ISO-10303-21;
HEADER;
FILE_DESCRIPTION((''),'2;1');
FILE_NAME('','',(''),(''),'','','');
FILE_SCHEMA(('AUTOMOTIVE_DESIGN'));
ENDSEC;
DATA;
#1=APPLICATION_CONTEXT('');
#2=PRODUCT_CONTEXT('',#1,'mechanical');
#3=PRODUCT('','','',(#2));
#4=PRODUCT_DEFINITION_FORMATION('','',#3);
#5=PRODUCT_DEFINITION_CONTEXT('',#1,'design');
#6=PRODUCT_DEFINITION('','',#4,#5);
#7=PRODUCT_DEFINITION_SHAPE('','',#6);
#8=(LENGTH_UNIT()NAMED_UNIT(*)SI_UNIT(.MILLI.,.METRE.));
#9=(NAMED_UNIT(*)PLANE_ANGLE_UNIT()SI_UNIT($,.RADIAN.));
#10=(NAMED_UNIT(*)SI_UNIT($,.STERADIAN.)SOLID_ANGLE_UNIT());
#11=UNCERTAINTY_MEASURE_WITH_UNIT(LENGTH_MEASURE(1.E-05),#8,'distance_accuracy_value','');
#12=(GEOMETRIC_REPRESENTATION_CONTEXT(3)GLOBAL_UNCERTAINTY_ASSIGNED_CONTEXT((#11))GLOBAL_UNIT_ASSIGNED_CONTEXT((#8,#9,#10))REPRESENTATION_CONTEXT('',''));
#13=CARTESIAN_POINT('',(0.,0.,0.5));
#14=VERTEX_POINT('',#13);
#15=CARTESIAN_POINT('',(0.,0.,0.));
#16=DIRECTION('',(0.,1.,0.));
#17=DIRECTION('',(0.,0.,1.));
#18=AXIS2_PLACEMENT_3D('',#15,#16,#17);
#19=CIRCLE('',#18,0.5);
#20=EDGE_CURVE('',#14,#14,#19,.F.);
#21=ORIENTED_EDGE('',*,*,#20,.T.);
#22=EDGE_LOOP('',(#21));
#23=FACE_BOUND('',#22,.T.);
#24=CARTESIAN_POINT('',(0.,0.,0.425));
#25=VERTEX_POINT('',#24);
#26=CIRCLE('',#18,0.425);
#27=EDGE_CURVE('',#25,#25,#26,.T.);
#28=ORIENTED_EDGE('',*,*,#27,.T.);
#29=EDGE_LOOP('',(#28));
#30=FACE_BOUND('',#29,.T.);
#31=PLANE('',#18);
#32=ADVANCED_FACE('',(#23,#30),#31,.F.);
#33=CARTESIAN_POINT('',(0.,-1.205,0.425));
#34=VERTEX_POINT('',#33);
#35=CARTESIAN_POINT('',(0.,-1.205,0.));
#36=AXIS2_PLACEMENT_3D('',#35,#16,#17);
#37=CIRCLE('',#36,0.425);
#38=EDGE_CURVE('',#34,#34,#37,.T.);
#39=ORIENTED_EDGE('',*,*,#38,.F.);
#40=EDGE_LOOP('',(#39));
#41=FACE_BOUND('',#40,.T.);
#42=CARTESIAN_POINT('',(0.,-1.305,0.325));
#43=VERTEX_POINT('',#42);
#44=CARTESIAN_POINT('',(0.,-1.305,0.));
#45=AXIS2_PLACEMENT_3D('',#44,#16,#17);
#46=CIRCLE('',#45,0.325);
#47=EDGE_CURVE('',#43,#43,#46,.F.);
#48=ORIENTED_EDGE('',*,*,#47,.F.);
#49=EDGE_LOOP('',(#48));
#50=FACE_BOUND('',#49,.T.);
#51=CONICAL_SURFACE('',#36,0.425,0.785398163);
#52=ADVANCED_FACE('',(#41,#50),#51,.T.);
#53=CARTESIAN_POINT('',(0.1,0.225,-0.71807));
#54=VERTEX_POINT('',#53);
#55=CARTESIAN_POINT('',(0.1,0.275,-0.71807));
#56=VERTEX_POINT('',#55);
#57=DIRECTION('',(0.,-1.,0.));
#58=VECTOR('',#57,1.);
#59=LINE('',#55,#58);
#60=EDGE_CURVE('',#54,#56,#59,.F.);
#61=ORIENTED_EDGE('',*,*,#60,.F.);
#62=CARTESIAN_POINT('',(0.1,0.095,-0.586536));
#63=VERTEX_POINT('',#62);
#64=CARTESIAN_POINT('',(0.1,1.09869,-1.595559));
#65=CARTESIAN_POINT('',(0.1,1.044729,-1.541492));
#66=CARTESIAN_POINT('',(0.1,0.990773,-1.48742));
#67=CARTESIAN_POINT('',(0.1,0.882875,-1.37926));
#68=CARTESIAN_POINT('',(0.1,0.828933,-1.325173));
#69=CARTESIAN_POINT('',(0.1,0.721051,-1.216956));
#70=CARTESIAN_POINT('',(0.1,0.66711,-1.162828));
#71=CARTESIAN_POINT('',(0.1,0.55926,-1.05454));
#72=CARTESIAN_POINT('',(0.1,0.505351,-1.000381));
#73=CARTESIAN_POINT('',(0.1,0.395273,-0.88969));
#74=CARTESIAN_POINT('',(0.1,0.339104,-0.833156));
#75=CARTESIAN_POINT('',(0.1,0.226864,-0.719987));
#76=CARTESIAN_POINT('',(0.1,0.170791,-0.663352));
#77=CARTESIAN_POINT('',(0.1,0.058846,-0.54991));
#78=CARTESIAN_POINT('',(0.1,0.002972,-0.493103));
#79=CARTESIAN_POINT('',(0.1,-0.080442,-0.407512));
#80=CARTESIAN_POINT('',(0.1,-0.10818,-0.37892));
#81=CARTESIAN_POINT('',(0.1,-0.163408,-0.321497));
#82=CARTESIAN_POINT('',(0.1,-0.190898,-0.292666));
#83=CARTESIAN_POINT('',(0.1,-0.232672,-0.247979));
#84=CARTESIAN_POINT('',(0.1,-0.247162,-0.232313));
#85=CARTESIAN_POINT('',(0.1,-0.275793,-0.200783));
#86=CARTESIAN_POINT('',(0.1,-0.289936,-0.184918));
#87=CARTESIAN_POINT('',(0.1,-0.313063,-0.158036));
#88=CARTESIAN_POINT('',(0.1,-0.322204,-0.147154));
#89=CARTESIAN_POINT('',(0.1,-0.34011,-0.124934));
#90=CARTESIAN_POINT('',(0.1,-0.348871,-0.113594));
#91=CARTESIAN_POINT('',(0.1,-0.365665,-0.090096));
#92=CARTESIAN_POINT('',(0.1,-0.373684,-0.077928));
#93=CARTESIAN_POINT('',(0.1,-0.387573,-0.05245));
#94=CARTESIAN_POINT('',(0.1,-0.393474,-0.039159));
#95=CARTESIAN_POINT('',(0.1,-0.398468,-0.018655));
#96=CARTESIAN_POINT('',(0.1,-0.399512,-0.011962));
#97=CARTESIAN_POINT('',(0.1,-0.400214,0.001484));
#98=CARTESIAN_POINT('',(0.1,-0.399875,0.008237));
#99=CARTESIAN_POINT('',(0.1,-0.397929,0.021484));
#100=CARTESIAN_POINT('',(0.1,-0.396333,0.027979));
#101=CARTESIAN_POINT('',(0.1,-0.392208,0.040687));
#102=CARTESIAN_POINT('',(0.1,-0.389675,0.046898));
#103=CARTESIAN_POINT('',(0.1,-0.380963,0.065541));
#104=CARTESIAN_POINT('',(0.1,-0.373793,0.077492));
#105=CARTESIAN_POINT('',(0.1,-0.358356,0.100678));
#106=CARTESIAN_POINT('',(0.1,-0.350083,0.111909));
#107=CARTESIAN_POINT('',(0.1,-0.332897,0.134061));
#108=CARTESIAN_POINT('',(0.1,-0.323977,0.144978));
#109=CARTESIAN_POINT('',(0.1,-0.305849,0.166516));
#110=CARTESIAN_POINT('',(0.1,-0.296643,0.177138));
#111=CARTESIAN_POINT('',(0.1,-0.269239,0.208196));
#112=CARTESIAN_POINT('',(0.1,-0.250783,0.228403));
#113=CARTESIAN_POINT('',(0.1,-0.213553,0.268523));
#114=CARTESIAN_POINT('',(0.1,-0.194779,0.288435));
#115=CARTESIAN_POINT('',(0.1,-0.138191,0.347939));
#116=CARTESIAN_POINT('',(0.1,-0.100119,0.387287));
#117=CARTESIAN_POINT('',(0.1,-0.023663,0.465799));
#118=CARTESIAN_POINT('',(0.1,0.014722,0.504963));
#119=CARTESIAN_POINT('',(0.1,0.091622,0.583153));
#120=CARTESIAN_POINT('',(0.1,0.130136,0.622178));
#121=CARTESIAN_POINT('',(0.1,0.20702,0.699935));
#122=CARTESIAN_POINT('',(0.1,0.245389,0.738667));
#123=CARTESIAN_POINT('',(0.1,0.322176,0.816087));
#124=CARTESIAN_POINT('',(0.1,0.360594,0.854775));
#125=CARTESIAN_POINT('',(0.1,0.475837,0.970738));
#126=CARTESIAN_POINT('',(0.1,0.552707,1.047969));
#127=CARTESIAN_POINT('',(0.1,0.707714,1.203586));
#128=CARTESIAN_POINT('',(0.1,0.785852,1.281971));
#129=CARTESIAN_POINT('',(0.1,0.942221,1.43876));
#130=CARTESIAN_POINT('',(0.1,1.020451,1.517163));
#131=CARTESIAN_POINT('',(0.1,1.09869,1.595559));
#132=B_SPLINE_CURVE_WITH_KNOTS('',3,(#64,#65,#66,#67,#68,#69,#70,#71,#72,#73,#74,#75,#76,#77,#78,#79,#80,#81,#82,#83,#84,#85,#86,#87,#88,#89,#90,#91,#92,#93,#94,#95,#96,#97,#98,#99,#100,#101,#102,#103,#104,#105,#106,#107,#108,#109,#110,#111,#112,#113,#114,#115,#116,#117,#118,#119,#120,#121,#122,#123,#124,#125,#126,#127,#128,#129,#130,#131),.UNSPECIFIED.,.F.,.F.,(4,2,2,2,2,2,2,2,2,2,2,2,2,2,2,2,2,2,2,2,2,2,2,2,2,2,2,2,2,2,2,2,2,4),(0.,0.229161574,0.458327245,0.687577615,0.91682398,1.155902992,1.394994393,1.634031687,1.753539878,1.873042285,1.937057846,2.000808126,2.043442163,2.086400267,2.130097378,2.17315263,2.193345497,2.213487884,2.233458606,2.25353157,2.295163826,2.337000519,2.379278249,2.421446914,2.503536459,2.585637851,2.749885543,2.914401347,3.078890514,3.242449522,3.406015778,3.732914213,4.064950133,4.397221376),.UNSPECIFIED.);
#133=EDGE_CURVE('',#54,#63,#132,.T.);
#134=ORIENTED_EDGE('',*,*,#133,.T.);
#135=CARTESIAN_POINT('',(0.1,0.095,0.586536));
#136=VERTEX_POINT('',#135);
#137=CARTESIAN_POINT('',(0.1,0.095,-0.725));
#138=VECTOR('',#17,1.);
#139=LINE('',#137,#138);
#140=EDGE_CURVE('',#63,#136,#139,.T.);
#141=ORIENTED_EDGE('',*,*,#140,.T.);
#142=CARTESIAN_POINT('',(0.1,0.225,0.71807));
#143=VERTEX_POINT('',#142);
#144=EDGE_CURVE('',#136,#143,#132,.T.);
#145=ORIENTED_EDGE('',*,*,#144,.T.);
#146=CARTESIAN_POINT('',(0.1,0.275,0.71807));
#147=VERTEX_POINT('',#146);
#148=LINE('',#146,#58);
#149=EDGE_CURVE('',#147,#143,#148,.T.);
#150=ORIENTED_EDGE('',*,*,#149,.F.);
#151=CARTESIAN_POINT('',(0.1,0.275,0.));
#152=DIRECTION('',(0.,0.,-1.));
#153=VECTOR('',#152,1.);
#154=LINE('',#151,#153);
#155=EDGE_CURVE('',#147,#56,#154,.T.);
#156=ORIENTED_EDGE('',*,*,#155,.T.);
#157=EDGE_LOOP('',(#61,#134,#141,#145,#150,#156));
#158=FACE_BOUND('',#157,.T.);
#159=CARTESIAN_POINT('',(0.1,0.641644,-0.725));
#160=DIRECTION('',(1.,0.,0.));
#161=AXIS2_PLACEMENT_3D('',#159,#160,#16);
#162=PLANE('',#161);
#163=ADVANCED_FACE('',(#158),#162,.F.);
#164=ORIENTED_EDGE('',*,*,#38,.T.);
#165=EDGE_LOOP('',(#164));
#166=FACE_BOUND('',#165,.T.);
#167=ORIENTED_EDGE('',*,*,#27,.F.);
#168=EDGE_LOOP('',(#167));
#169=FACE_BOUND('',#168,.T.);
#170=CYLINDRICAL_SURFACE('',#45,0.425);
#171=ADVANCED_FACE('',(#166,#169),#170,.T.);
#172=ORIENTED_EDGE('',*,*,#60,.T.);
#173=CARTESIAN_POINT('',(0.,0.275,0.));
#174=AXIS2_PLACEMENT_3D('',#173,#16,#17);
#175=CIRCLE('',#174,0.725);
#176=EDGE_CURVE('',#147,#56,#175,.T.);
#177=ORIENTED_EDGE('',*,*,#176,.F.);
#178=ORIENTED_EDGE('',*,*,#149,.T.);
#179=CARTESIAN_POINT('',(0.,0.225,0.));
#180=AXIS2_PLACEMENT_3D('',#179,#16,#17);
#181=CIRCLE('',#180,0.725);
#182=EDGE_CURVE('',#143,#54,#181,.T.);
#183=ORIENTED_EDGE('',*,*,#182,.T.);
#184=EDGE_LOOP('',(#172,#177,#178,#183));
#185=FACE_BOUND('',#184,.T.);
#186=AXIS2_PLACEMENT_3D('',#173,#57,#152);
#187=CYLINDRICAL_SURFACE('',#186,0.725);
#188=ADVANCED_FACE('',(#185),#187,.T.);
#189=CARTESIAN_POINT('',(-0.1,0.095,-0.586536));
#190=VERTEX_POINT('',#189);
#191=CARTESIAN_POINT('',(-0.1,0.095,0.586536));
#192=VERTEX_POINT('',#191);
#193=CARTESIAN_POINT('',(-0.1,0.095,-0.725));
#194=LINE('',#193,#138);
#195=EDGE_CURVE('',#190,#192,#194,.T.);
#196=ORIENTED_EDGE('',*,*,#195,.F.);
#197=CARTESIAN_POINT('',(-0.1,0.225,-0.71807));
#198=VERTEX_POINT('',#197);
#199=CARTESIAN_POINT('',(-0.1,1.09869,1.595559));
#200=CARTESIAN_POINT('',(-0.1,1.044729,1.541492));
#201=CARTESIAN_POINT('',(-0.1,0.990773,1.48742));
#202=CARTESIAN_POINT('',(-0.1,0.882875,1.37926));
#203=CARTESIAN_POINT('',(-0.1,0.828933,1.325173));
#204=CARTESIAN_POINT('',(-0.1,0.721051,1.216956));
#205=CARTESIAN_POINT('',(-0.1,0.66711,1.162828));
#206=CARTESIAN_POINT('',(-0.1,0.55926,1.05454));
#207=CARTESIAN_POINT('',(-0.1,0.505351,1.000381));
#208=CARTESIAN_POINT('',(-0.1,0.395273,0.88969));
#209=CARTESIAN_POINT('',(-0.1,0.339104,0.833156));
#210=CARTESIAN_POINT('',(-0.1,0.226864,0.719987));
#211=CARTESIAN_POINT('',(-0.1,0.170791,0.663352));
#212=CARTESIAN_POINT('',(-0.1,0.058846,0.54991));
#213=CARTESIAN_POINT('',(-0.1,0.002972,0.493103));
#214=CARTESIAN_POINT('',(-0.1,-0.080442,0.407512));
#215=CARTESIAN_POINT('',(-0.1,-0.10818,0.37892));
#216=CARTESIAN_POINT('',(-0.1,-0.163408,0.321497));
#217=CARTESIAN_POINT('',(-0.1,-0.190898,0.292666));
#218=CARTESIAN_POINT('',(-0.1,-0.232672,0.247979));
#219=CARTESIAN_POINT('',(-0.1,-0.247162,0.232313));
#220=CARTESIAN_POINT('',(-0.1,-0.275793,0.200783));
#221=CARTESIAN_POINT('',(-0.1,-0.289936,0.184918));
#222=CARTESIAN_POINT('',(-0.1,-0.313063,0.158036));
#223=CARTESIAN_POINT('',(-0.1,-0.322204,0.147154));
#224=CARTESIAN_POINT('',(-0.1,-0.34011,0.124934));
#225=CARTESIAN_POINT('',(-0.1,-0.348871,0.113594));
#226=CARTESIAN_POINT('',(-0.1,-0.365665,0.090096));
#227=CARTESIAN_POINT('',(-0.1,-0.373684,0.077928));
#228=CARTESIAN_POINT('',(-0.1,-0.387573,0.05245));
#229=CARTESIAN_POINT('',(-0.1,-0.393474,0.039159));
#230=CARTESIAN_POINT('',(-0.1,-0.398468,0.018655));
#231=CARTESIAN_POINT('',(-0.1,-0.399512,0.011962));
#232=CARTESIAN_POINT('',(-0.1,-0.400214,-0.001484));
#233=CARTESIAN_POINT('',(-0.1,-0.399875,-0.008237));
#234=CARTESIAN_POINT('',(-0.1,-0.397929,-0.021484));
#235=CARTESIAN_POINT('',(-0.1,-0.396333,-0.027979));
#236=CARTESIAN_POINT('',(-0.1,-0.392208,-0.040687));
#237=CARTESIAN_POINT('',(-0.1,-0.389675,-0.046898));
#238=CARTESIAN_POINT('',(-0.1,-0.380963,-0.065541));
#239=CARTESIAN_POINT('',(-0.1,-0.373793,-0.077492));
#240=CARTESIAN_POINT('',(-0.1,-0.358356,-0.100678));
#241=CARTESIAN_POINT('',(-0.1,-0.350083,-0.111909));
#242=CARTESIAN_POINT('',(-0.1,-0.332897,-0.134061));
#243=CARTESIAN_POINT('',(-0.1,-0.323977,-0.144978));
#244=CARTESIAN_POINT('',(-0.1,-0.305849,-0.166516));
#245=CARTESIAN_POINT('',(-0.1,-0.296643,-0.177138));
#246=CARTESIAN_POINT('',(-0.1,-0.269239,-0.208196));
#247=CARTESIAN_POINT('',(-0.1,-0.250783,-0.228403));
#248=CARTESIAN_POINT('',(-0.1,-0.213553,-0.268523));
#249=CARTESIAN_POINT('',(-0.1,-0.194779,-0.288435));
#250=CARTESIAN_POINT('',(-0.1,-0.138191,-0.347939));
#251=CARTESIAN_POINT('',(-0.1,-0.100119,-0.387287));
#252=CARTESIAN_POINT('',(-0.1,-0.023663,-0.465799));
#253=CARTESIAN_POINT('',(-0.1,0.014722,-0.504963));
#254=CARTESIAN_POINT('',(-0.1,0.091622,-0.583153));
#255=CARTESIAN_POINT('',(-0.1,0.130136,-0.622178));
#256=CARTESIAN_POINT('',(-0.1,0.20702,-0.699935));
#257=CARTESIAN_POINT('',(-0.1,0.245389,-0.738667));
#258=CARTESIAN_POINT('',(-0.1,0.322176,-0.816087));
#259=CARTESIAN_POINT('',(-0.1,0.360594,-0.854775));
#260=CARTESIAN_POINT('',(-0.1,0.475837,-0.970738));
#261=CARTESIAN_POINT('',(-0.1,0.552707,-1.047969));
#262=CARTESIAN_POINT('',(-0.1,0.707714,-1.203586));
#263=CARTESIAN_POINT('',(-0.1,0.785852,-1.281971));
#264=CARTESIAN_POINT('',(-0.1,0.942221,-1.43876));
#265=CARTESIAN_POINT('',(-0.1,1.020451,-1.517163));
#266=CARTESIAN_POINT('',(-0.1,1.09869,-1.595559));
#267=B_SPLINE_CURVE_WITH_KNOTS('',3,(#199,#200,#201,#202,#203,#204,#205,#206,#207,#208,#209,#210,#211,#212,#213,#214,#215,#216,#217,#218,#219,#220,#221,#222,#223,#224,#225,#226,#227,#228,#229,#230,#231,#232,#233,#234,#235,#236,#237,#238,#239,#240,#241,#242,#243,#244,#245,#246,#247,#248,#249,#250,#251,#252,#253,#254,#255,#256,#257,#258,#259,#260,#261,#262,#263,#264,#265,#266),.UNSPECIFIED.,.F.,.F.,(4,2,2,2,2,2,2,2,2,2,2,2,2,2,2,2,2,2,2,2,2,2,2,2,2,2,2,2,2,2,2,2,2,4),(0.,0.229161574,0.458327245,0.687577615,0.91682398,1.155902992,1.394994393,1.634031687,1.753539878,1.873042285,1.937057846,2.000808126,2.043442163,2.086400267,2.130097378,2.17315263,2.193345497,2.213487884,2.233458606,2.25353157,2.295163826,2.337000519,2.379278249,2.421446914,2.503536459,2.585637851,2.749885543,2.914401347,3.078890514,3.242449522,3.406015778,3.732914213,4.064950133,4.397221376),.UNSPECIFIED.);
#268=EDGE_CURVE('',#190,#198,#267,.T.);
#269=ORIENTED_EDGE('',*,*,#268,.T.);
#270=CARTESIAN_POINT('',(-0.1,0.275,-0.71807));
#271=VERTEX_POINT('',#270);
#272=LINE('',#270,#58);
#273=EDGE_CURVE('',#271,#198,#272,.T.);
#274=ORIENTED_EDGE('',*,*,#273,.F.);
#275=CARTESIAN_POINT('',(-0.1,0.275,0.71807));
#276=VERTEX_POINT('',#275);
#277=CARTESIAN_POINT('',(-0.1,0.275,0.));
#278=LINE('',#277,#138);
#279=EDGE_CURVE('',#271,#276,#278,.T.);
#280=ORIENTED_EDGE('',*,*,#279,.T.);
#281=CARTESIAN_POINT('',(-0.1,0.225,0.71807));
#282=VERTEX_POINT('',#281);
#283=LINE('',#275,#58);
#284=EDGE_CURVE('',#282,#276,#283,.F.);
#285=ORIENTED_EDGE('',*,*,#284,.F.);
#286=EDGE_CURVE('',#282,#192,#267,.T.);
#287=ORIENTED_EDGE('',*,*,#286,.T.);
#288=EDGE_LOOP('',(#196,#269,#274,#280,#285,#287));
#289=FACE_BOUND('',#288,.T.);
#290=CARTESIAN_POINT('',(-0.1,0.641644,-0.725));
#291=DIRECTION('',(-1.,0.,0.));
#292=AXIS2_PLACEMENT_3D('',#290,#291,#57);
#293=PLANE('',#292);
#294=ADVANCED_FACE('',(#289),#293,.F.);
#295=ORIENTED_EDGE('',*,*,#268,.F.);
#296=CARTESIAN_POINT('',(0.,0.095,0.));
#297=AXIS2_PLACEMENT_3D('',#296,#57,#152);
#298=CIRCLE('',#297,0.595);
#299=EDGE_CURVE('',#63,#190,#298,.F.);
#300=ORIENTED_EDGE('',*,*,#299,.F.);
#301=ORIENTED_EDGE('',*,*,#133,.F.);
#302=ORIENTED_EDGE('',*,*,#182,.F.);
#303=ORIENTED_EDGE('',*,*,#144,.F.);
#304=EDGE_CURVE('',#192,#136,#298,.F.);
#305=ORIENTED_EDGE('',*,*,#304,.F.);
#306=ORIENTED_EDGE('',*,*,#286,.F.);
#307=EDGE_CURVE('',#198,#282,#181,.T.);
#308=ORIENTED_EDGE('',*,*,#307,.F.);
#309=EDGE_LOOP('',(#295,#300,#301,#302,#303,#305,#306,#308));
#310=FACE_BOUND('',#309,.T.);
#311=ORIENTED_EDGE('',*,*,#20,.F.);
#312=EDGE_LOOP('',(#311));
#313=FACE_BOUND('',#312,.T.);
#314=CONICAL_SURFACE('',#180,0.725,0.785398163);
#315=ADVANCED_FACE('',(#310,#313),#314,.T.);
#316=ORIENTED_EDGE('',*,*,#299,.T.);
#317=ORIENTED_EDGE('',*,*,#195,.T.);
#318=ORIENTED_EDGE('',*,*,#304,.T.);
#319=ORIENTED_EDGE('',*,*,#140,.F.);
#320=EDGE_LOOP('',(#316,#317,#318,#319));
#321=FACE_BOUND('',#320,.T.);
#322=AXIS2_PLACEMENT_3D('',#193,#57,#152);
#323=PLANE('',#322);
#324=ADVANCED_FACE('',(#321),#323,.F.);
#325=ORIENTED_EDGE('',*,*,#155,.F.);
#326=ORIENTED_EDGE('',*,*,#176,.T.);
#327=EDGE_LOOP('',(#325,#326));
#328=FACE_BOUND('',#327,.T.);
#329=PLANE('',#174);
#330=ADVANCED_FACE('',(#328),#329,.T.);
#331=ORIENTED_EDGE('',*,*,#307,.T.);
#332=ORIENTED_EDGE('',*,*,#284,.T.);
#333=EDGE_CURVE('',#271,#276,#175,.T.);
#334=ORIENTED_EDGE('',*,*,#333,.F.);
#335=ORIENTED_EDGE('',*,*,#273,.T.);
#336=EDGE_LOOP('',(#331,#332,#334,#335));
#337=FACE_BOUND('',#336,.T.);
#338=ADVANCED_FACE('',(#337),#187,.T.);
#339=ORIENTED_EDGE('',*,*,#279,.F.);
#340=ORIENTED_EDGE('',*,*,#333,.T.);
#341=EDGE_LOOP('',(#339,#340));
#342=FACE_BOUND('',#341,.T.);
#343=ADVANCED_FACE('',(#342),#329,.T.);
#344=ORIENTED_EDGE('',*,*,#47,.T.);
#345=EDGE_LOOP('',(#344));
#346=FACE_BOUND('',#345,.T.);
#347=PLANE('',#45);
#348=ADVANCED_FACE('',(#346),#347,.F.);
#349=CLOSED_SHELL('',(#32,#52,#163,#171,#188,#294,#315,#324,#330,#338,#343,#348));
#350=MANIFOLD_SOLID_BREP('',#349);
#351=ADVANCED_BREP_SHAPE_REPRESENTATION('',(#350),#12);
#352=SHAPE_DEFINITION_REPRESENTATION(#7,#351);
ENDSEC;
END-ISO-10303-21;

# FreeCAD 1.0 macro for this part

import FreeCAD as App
import Part
import Sketcher
from FreeCAD import Vector
Q = App.Units.Quantity


def edges_at(feature, points):
    """Names of the edges that pass closest to the given points."""
    edges = feature.Shape.Edges
    near = lambda p: min(range(len(edges)), key=lambda i: edges[i].distToShape(Part.Vertex(*p))[0])
    return sorted({f"Edge{near(p) + 1}" for p in points})


def add_polygon(sketch, points):
    """Adds a closed chain of lines whose ends are joined by coincident constraints."""
    first, n = sketch.GeometryCount, len(points)
    for a, b in zip(points, points[1:] + points[:1]):
        sketch.addGeometry(Part.LineSegment(App.Vector(*a, 0), App.Vector(*b, 0)), False)
    for i in range(n):
        sketch.addConstraint(Sketcher.Constraint("Coincident", first + i, 2, first + (i + 1) % n, 1))

doc = App.newDocument("Part")
params = doc.addObject("Spreadsheet::Sheet", "Params")
for row, (alias, value) in enumerate([
    ("sketch1_diameter", "1.45 mm"),
    ("pad1_length", "0.275 mm"),
    ("sketch2_diameter", "0.85 mm"),
    ("pad2_length", "1.305 mm"),
    ("chamfer_size", "0.1 mm"),
    ("chamfer2_size", "0.225 mm"),
    ("sketch3_width", "0.2 mm"),
], start=1):
    params.set(f"A{row}", alias)
    params.set(f"B{row}", "=" + value)
    params.setAlias(f"B{row}", alias)

body = doc.addObject("PartDesign::Body", "Body")

# Sketch on XZ plane
sketch1 = body.newObject("Sketcher::SketchObject", "Sketch")
sketch1.AttachmentSupport = (doc.getObject("XZ_Plane"), [""])
sketch1.MapMode = "FlatFace"
sketch1.addGeometry(Part.Circle(Vector(0, 0, 0), Vector(0, 0, 1), 0.725), False)
sketch1.addConstraint(Sketcher.Constraint("Coincident", 0, 3, -1, 1))
sketch1.addConstraint(Sketcher.Constraint("Diameter", 0, Q("1.45 mm")))
sketch1.setExpression("Constraints[1]", "Params.sketch1_diameter")
pad1 = body.newObject("PartDesign::Pad", "Pad")
pad1.Profile = sketch1
pad1.setExpression("Length", "Params.pad1_length")
pad1.Reversed = True

# Sketch on XZ plane
sketch2 = body.newObject("Sketcher::SketchObject", "Sketch001")
sketch2.AttachmentSupport = (doc.getObject("XZ_Plane"), [""])
sketch2.MapMode = "FlatFace"
sketch2.addGeometry(Part.Circle(Vector(0, 0, 0), Vector(0, 0, 1), 0.425), False)
sketch2.addConstraint(Sketcher.Constraint("Coincident", 0, 3, -1, 1))
sketch2.addConstraint(Sketcher.Constraint("Diameter", 0, Q("0.85 mm")))
sketch2.setExpression("Constraints[1]", "Params.sketch2_diameter")
pad2 = body.newObject("PartDesign::Pad", "Pad001")
pad2.Profile = sketch2
pad2.setExpression("Length", "Params.pad2_length")
doc.recompute()

chamfer = body.newObject("PartDesign::Chamfer", "Chamfer")
chamfer.Base = (pad2, edges_at(pad2, [(-0.425, -1.305, 0)]))
chamfer.setExpression("Size", "Params.chamfer_size")
doc.recompute()

chamfer2 = body.newObject("PartDesign::Chamfer", "Chamfer001")
chamfer2.Base = (chamfer, edges_at(chamfer, [(-0.725, 0, 0)]))
chamfer2.setExpression("Size", "Params.chamfer2_size")

# Sketch on XY plane
sketch3 = body.newObject("Sketcher::SketchObject", "Sketch002")
sketch3.AttachmentSupport = (doc.getObject("XY_Plane"), [""])
sketch3.MapMode = "FlatFace"
add_polygon(sketch3, [(-0.1, 0.641644), (-0.1, 0.095), (0.1, 0.095), (0.1, 0.641644)])  # lines 0-3
sketch3.addConstraint(Sketcher.Constraint("Vertical", 0))
sketch3.addConstraint(Sketcher.Constraint("Horizontal", 1))
sketch3.addConstraint(Sketcher.Constraint("Vertical", 2))
sketch3.addConstraint(Sketcher.Constraint("Horizontal", 3))
sketch3.addConstraint(Sketcher.Constraint("DistanceX", 1, 1, 1, 2, Q("0.2 mm")))
sketch3.addConstraint(Sketcher.Constraint("DistanceX", 0, 2, -1, 1, Q("0.1 mm")))
sketch3.addConstraint(Sketcher.Constraint("DistanceY", -1, 1, 0, 2, Q("0.095 mm")))
sketch3.addConstraint(Sketcher.Constraint("DistanceY", 0, 2, 0, 1, Q("0.546644 mm")))
sketch3.setExpression("Constraints[8]", "Params.sketch3_width")
pocket1 = body.newObject("PartDesign::Pocket", "Pocket")
pocket1.Profile = sketch3
pocket1.Type = "ThroughAll"
pocket1.Midplane = True

doc.recompute()
